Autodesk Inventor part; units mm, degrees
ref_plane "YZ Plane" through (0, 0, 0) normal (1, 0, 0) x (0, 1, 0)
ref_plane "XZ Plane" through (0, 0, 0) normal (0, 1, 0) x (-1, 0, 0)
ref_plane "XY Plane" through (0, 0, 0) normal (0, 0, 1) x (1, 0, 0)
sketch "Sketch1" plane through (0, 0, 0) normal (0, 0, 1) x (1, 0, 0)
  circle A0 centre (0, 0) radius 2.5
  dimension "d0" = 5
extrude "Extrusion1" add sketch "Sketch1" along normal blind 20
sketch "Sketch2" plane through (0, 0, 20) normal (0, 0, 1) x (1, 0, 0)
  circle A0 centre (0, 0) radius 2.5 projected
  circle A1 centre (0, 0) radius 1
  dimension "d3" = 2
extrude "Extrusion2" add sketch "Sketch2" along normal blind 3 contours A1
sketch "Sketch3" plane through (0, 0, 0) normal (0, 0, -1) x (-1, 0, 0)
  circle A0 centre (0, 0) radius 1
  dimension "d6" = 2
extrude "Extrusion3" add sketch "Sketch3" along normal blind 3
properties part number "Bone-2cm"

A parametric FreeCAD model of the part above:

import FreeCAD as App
import Part
import Sketcher

doc = App.newDocument("Part")
body = doc.addObject("PartDesign::Body", "Body")

# Sketch on XY plane
sketch1 = body.newObject("Sketcher::SketchObject", "Sketch")
sketch1.AttachmentSupport = (doc.getObject("XY_Plane"), [""])
sketch1.MapMode = "FlatFace"
sketch1.addGeometry(Part.Circle(App.Vector(0, 0, 0), App.Vector(0, 0, 1), 2.5), False)
sketch1.addConstraint([
    Sketcher.Constraint("Coincident", 0, 3, -1, 1),
    Sketcher.Constraint("Diameter", 0, 5.0),
])
pad1 = body.newObject("PartDesign::Pad", "Pad")
pad1.Profile = sketch1
pad1.Length = 20

# Sketch on XY plane
sketch2 = body.newObject("Sketcher::SketchObject", "Sketch001")
sketch2.AttachmentSupport = (doc.getObject("XY_Plane"), [""])
sketch2.MapMode = "FlatFace"
sketch2.AttachmentOffset = App.Placement(App.Vector(0, 0, 20), App.Rotation())
sketch2.addGeometry(Part.Circle(App.Vector(0, 0, 0), App.Vector(0, 0, 1), 1), False)
sketch2.addConstraint([
    Sketcher.Constraint("Coincident", 0, 3, -1, 1),
    Sketcher.Constraint("Diameter", 0, 2.0),
])
pad2 = body.newObject("PartDesign::Pad", "Pad001")
pad2.Profile = sketch2
pad2.Length = 3

# Sketch on XY plane
sketch3 = body.newObject("Sketcher::SketchObject", "Sketch002")
sketch3.AttachmentSupport = (doc.getObject("XY_Plane"), [""])
sketch3.MapMode = "FlatFace"
sketch3.addGeometry(Part.Circle(App.Vector(0, 0, 0), App.Vector(0, 0, 1), 1), False)
sketch3.addConstraint([
    Sketcher.Constraint("Coincident", 0, 3, -1, 1),
    Sketcher.Constraint("Diameter", 0, 2.0),
])
pad3 = body.newObject("PartDesign::Pad", "Pad002")
pad3.Profile = sketch3
pad3.Length = 3
pad3.Reversed = True

doc.recompute()
